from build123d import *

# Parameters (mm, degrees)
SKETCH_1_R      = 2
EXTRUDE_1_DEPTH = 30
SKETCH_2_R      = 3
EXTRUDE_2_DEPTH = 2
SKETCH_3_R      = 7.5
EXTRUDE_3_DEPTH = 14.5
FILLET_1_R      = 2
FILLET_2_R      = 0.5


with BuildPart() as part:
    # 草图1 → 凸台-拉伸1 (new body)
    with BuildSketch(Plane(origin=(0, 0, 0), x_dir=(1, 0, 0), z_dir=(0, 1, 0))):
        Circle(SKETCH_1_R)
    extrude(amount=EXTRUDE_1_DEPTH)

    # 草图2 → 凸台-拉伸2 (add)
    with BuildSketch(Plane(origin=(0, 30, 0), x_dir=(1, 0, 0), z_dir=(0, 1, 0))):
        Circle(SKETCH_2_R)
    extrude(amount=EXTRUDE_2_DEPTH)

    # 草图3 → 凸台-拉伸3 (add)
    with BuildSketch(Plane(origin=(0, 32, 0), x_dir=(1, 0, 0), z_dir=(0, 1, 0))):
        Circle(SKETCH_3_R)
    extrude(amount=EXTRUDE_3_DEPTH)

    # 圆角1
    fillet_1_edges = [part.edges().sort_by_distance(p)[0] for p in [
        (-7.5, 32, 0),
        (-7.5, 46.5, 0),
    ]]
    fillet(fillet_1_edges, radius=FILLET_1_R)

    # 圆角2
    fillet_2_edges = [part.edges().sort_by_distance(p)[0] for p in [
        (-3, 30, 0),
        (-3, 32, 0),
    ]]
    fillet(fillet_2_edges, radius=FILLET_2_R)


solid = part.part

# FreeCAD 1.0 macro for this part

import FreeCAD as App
import Part
import Sketcher
from FreeCAD import Vector
Q = App.Units.Quantity


def edges_at(feature, points):
    """Names of the edges that pass closest to the given points."""
    edges = feature.Shape.Edges
    near = lambda p: min(range(len(edges)), key=lambda i: edges[i].distToShape(Part.Vertex(*p))[0])
    return sorted({f"Edge{near(p) + 1}" for p in points})

doc = App.newDocument("Part")
params = doc.addObject("Spreadsheet::Sheet", "Params")
for row, (alias, value) in enumerate([
    ("sketch1_diameter", "4 mm"),
    ("pad1_length", "30 mm"),
    ("sketch2_diameter", "6 mm"),
    ("pad2_length", "2 mm"),
    ("sketch3_diameter", "15 mm"),
    ("pad3_length", "14.5 mm"),
    ("fillet_radius", "2 mm"),
    ("fillet2_radius", "0.5 mm"),
], start=1):
    params.set(f"A{row}", alias)
    params.set(f"B{row}", "=" + value)
    params.setAlias(f"B{row}", alias)

body = doc.addObject("PartDesign::Body", "Body")

# Sketch on XZ plane
sketch1 = body.newObject("Sketcher::SketchObject", "Sketch")
sketch1.AttachmentSupport = (doc.getObject("XZ_Plane"), [""])
sketch1.MapMode = "FlatFace"
sketch1.addGeometry(Part.Circle(Vector(0, 0, 0), Vector(0, 0, 1), 2), False)
sketch1.addConstraint([
    Sketcher.Constraint("Coincident", 0, 3, -1, 1),
    Sketcher.Constraint("Diameter", 0, Q("4 mm")),
])
sketch1.setExpression("Constraints[1]", "Params.sketch1_diameter")
pad1 = body.newObject("PartDesign::Pad", "Pad")
pad1.Profile = sketch1
pad1.setExpression("Length", "Params.pad1_length")
pad1.Reversed = True

# Sketch on XZ plane
sketch2 = body.newObject("Sketcher::SketchObject", "Sketch001")
sketch2.AttachmentSupport = (doc.getObject("XZ_Plane"), [""])
sketch2.MapMode = "FlatFace"
sketch2.AttachmentOffset = App.Placement(Vector(0, 0, -30), App.Rotation())
sketch2.addGeometry(Part.Circle(Vector(0, 0, 0), Vector(0, 0, 1), 3), False)
sketch2.addConstraint([
    Sketcher.Constraint("Coincident", 0, 3, -1, 1),
    Sketcher.Constraint("Diameter", 0, Q("6 mm")),
])
sketch2.setExpression("Constraints[1]", "Params.sketch2_diameter")
pad2 = body.newObject("PartDesign::Pad", "Pad001")
pad2.Profile = sketch2
pad2.setExpression("Length", "Params.pad2_length")
pad2.Reversed = True

# Sketch on XZ plane
sketch3 = body.newObject("Sketcher::SketchObject", "Sketch002")
sketch3.AttachmentSupport = (doc.getObject("XZ_Plane"), [""])
sketch3.MapMode = "FlatFace"
sketch3.AttachmentOffset = App.Placement(Vector(0, 0, -32), App.Rotation())
sketch3.addGeometry(Part.Circle(Vector(0, 0, 0), Vector(0, 0, 1), 7.5), False)
sketch3.addConstraint([
    Sketcher.Constraint("Coincident", 0, 3, -1, 1),
    Sketcher.Constraint("Diameter", 0, Q("15 mm")),
])
sketch3.setExpression("Constraints[1]", "Params.sketch3_diameter")
pad3 = body.newObject("PartDesign::Pad", "Pad002")
pad3.Profile = sketch3
pad3.setExpression("Length", "Params.pad3_length")
pad3.Reversed = True
doc.recompute()

fillet = body.newObject("PartDesign::Fillet", "Fillet")
fillet.Base = (pad3, edges_at(pad3, [(-7.5, 32, 0), (-7.5, 46.5, 0)]))
fillet.setExpression("Radius", "Params.fillet_radius")
doc.recompute()

fillet2 = body.newObject("PartDesign::Fillet", "Fillet001")
fillet2.Base = (fillet, edges_at(fillet, [(-3, 30, 0), (-3, 32, 0)]))
fillet2.setExpression("Radius", "Params.fillet2_radius")

doc.recompute()
